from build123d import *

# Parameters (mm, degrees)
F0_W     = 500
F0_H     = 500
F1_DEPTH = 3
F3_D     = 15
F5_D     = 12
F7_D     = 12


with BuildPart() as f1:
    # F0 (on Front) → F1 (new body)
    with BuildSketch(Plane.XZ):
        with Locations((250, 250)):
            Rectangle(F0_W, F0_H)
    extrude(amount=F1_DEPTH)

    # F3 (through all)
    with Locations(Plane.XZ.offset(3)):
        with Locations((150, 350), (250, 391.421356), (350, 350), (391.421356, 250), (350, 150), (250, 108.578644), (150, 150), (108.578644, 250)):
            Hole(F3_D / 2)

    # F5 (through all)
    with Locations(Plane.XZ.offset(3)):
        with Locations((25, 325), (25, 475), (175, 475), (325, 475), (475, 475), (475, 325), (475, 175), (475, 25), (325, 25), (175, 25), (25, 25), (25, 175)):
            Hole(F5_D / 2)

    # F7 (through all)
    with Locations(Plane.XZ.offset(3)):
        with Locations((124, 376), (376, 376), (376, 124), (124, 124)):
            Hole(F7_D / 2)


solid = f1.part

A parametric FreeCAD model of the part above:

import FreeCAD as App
import Part
import Sketcher
from FreeCAD import Vector

doc = App.newDocument("Part")
params = doc.addObject("Spreadsheet::Sheet", "Params")
for row, (alias, value) in enumerate([
    ("sketch1_width", "500 mm"),
    ("pad1_length", "3 mm"),
    ("sketch2_diameter", "15 mm"),
    ("hole_diameter", "15 mm"),
    ("sketch3_diameter", "12 mm"),
    ("hole2_diameter", "12 mm"),
    ("sketch4_diameter", "12 mm"),
    ("hole3_diameter", "12 mm"),
], start=1):
    params.set(f"A{row}", alias)
    params.set(f"B{row}", "=" + value)
    params.setAlias(f"B{row}", alias)

body = doc.addObject("PartDesign::Body", "Body")

# Sketch on XZ plane
sketch1 = body.newObject("Sketcher::SketchObject", "Sketch")
sketch1.AttachmentSupport = (doc.getObject("XZ_Plane"), [""])
sketch1.MapMode = "FlatFace"
sketch1.addGeometry(Part.LineSegment(Vector(0, 500, 0), Vector(0, 0, 0)), False)
sketch1.addGeometry(Part.LineSegment(Vector(0, 0, 0), Vector(500, 0, 0)), False)
sketch1.addGeometry(Part.LineSegment(Vector(500, 0, 0), Vector(500, 500, 0)), False)
sketch1.addGeometry(Part.LineSegment(Vector(500, 500, 0), Vector(0, 500, 0)), False)
sketch1.addConstraint(Sketcher.Constraint("Coincident", 0, 2, 1, 1))
sketch1.addConstraint(Sketcher.Constraint("Coincident", 1, 2, 2, 1))
sketch1.addConstraint(Sketcher.Constraint("Coincident", 2, 2, 3, 1))
sketch1.addConstraint(Sketcher.Constraint("Coincident", 3, 2, 0, 1))
sketch1.addConstraint(Sketcher.Constraint("Vertical", 0))
sketch1.addConstraint(Sketcher.Constraint("Horizontal", 1))
sketch1.addConstraint(Sketcher.Constraint("Vertical", 2))
sketch1.addConstraint(Sketcher.Constraint("Horizontal", 3))
sketch1.addConstraint(Sketcher.Constraint("Coincident", 0, 2, -1, 1))
sketch1.addConstraint(Sketcher.Constraint("Equal", 3, 0))
sketch1.addConstraint(Sketcher.Constraint("DistanceX", 1, 1, 1, 2, 500.0))
sketch1.setExpression("Constraints[10]", "Params.sketch1_width")
pad1 = body.newObject("PartDesign::Pad", "Pad")
pad1.Profile = sketch1
pad1.setExpression("Length", "Params.pad1_length")

# Sketch on XZ plane
sketch2 = body.newObject("Sketcher::SketchObject", "Sketch001")
sketch2.AttachmentSupport = (doc.getObject("XZ_Plane"), [""])
sketch2.MapMode = "FlatFace"
sketch2.AttachmentOffset = App.Placement(Vector(0, 0, 3), App.Rotation())
sketch2.addGeometry(Part.Circle(Vector(150, 350, 0), Vector(0, 0, 1), 8), False)
sketch2.addGeometry(Part.Circle(Vector(250, 391, 0), Vector(0, 0, 1), 8), False)
sketch2.addGeometry(Part.Circle(Vector(350, 350, 0), Vector(0, 0, 1), 8), False)
sketch2.addGeometry(Part.Circle(Vector(391, 250, 0), Vector(0, 0, 1), 8), False)
sketch2.addGeometry(Part.Circle(Vector(350, 150, 0), Vector(0, 0, 1), 8), False)
sketch2.addGeometry(Part.Circle(Vector(250, 109, 0), Vector(0, 0, 1), 8), False)
sketch2.addGeometry(Part.Circle(Vector(150, 150, 0), Vector(0, 0, 1), 8), False)
sketch2.addGeometry(Part.Circle(Vector(109, 250, 0), Vector(0, 0, 1), 8), False)
sketch2.addConstraint(Sketcher.Constraint("Equal", 0, 1))
sketch2.addConstraint(Sketcher.Constraint("Equal", 1, 2))
sketch2.addConstraint(Sketcher.Constraint("Equal", 2, 3))
sketch2.addConstraint(Sketcher.Constraint("Equal", 3, 4))
sketch2.addConstraint(Sketcher.Constraint("Equal", 4, 5))
sketch2.addConstraint(Sketcher.Constraint("Equal", 5, 6))
sketch2.addConstraint(Sketcher.Constraint("Equal", 6, 7))
sketch2.addConstraint(Sketcher.Constraint("Horizontal", 0, 3, 2, 3))
sketch2.addConstraint(Sketcher.Constraint("Horizontal", 4, 3, 6, 3))
sketch2.addConstraint(Sketcher.Constraint("Horizontal", 3, 3, 7, 3))
sketch2.addConstraint(Sketcher.Constraint("Vertical", 2, 3, 4, 3))
sketch2.addConstraint(Sketcher.Constraint("Vertical", 1, 3, 5, 3))
sketch2.addConstraint(Sketcher.Constraint("Vertical", 0, 3, 6, 3))
sketch2.addConstraint(Sketcher.Constraint("Diameter", 0, 15.0))
sketch2.addConstraint(Sketcher.Constraint("DistanceX", -1, 1, 0, 3, 150.0))
sketch2.addConstraint(Sketcher.Constraint("DistanceY", -1, 1, 0, 3, 350.0))
sketch2.addConstraint(Sketcher.Constraint("DistanceX", -1, 1, 1, 3, 250.0))
sketch2.addConstraint(Sketcher.Constraint("DistanceX", -1, 1, 2, 3, 350.0))
sketch2.addConstraint(Sketcher.Constraint("DistanceY", -1, 1, 3, 3, 250.0))
sketch2.addConstraint(Sketcher.Constraint("DistanceY", -1, 1, 4, 3, 150.0))
sketch2.addConstraint(Sketcher.Constraint("DistanceY", 5, 3, 1, 3, 282.842712))
sketch2.addConstraint(Sketcher.Constraint("DistanceY", -1, 1, 1, 3, 391.421356))
sketch2.addConstraint(Sketcher.Constraint("DistanceX", -1, 1, 3, 3, 391.421356))
sketch2.addConstraint(Sketcher.Constraint("DistanceX", -1, 1, 7, 3, 108.578644))
sketch2.setExpression("Constraints[13]", "Params.sketch2_diameter")
doc.recompute()
hole = body.newObject("PartDesign::Hole", "Hole")
hole.Profile = sketch2
hole.ThreadType = "None"
hole.setExpression("Diameter", "Params.hole_diameter")
hole.DepthType = "ThroughAll"

# Sketch on XZ plane
sketch3 = body.newObject("Sketcher::SketchObject", "Sketch002")
sketch3.AttachmentSupport = (doc.getObject("XZ_Plane"), [""])
sketch3.MapMode = "FlatFace"
sketch3.AttachmentOffset = App.Placement(Vector(0, 0, 3), App.Rotation())
sketch3.addGeometry(Part.Circle(Vector(25, 325, 0), Vector(0, 0, 1), 6), False)
sketch3.addGeometry(Part.Circle(Vector(25, 475, 0), Vector(0, 0, 1), 6), False)
sketch3.addGeometry(Part.Circle(Vector(175, 475, 0), Vector(0, 0, 1), 6), False)
sketch3.addGeometry(Part.Circle(Vector(325, 475, 0), Vector(0, 0, 1), 6), False)
sketch3.addGeometry(Part.Circle(Vector(475, 475, 0), Vector(0, 0, 1), 6), False)
sketch3.addGeometry(Part.Circle(Vector(475, 325, 0), Vector(0, 0, 1), 6), False)
sketch3.addGeometry(Part.Circle(Vector(475, 175, 0), Vector(0, 0, 1), 6), False)
sketch3.addGeometry(Part.Circle(Vector(475, 25, 0), Vector(0, 0, 1), 6), False)
sketch3.addGeometry(Part.Circle(Vector(325, 25, 0), Vector(0, 0, 1), 6), False)
sketch3.addGeometry(Part.Circle(Vector(175, 25, 0), Vector(0, 0, 1), 6), False)
sketch3.addGeometry(Part.Circle(Vector(25, 25, 0), Vector(0, 0, 1), 6), False)
sketch3.addGeometry(Part.Circle(Vector(25, 175, 0), Vector(0, 0, 1), 6), False)
sketch3.addConstraint(Sketcher.Constraint("Equal", 0, 1))
sketch3.addConstraint(Sketcher.Constraint("Equal", 1, 2))
sketch3.addConstraint(Sketcher.Constraint("Equal", 2, 3))
sketch3.addConstraint(Sketcher.Constraint("Equal", 3, 4))
sketch3.addConstraint(Sketcher.Constraint("Equal", 4, 5))
sketch3.addConstraint(Sketcher.Constraint("Equal", 5, 6))
sketch3.addConstraint(Sketcher.Constraint("Equal", 6, 7))
sketch3.addConstraint(Sketcher.Constraint("Equal", 7, 8))
sketch3.addConstraint(Sketcher.Constraint("Equal", 8, 9))
sketch3.addConstraint(Sketcher.Constraint("Equal", 9, 10))
sketch3.addConstraint(Sketcher.Constraint("Equal", 10, 11))
sketch3.addConstraint(Sketcher.Constraint("Horizontal", 1, 3, 2, 3))
sketch3.addConstraint(Sketcher.Constraint("Horizontal", 2, 3, 3, 3))
sketch3.addConstraint(Sketcher.Constraint("Horizontal", 3, 3, 4, 3))
sketch3.addConstraint(Sketcher.Constraint("Horizontal", 0, 3, 5, 3))
sketch3.addConstraint(Sketcher.Constraint("Horizontal", 7, 3, 8, 3))
sketch3.addConstraint(Sketcher.Constraint("Horizontal", 8, 3, 9, 3))
sketch3.addConstraint(Sketcher.Constraint("Horizontal", 9, 3, 10, 3))
sketch3.addConstraint(Sketcher.Constraint("Horizontal", 6, 3, 11, 3))
sketch3.addConstraint(Sketcher.Constraint("Vertical", 0, 3, 1, 3))
sketch3.addConstraint(Sketcher.Constraint("Vertical", 4, 3, 5, 3))
sketch3.addConstraint(Sketcher.Constraint("Vertical", 5, 3, 6, 3))
sketch3.addConstraint(Sketcher.Constraint("Vertical", 6, 3, 7, 3))
sketch3.addConstraint(Sketcher.Constraint("Vertical", 3, 3, 8, 3))
sketch3.addConstraint(Sketcher.Constraint("Vertical", 2, 3, 9, 3))
sketch3.addConstraint(Sketcher.Constraint("Vertical", 1, 3, 10, 3))
sketch3.addConstraint(Sketcher.Constraint("Vertical", 10, 3, 11, 3))
sketch3.addConstraint(Sketcher.Constraint("Diameter", 0, 12.0))
sketch3.addConstraint(Sketcher.Constraint("DistanceX", -1, 1, 0, 3, 25.0))
sketch3.addConstraint(Sketcher.Constraint("DistanceY", -1, 1, 0, 3, 325.0))
sketch3.addConstraint(Sketcher.Constraint("DistanceY", -1, 1, 1, 3, 475.0))
sketch3.addConstraint(Sketcher.Constraint("DistanceX", -1, 1, 2, 3, 175.0))
sketch3.addConstraint(Sketcher.Constraint("DistanceX", -1, 1, 3, 3, 325.0))
sketch3.addConstraint(Sketcher.Constraint("DistanceX", -1, 1, 4, 3, 475.0))
sketch3.addConstraint(Sketcher.Constraint("DistanceY", -1, 1, 6, 3, 175.0))
sketch3.addConstraint(Sketcher.Constraint("DistanceY", -1, 1, 7, 3, 25.0))
sketch3.setExpression("Constraints[27]", "Params.sketch3_diameter")
doc.recompute()
hole2 = body.newObject("PartDesign::Hole", "Hole001")
hole2.Profile = sketch3
hole2.ThreadType = "None"
hole2.setExpression("Diameter", "Params.hole2_diameter")
hole2.DepthType = "ThroughAll"

# Sketch on XZ plane
sketch4 = body.newObject("Sketcher::SketchObject", "Sketch003")
sketch4.AttachmentSupport = (doc.getObject("XZ_Plane"), [""])
sketch4.MapMode = "FlatFace"
sketch4.AttachmentOffset = App.Placement(Vector(0, 0, 3), App.Rotation())
sketch4.addGeometry(Part.Circle(Vector(124, 376, 0), Vector(0, 0, 1), 6), False)
sketch4.addGeometry(Part.Circle(Vector(376, 376, 0), Vector(0, 0, 1), 6), False)
sketch4.addGeometry(Part.Circle(Vector(376, 124, 0), Vector(0, 0, 1), 6), False)
sketch4.addGeometry(Part.Circle(Vector(124, 124, 0), Vector(0, 0, 1), 6), False)
sketch4.addConstraint(Sketcher.Constraint("Equal", 0, 1))
sketch4.addConstraint(Sketcher.Constraint("Equal", 1, 2))
sketch4.addConstraint(Sketcher.Constraint("Equal", 2, 3))
sketch4.addConstraint(Sketcher.Constraint("Horizontal", 0, 3, 1, 3))
sketch4.addConstraint(Sketcher.Constraint("Horizontal", 2, 3, 3, 3))
sketch4.addConstraint(Sketcher.Constraint("Vertical", 1, 3, 2, 3))
sketch4.addConstraint(Sketcher.Constraint("Vertical", 0, 3, 3, 3))
sketch4.addConstraint(Sketcher.Constraint("Diameter", 0, 12.0))
sketch4.addConstraint(Sketcher.Constraint("DistanceX", -1, 1, 0, 3, 124.0))
sketch4.addConstraint(Sketcher.Constraint("DistanceY", -1, 1, 0, 3, 376.0))
sketch4.addConstraint(Sketcher.Constraint("DistanceX", -1, 1, 1, 3, 376.0))
sketch4.addConstraint(Sketcher.Constraint("DistanceY", -1, 1, 2, 3, 124.0))
sketch4.setExpression("Constraints[7]", "Params.sketch4_diameter")
doc.recompute()
hole3 = body.newObject("PartDesign::Hole", "Hole002")
hole3.Profile = sketch4
hole3.ThreadType = "None"
hole3.setExpression("Diameter", "Params.hole3_diameter")
hole3.DepthType = "ThroughAll"

doc.recompute()
